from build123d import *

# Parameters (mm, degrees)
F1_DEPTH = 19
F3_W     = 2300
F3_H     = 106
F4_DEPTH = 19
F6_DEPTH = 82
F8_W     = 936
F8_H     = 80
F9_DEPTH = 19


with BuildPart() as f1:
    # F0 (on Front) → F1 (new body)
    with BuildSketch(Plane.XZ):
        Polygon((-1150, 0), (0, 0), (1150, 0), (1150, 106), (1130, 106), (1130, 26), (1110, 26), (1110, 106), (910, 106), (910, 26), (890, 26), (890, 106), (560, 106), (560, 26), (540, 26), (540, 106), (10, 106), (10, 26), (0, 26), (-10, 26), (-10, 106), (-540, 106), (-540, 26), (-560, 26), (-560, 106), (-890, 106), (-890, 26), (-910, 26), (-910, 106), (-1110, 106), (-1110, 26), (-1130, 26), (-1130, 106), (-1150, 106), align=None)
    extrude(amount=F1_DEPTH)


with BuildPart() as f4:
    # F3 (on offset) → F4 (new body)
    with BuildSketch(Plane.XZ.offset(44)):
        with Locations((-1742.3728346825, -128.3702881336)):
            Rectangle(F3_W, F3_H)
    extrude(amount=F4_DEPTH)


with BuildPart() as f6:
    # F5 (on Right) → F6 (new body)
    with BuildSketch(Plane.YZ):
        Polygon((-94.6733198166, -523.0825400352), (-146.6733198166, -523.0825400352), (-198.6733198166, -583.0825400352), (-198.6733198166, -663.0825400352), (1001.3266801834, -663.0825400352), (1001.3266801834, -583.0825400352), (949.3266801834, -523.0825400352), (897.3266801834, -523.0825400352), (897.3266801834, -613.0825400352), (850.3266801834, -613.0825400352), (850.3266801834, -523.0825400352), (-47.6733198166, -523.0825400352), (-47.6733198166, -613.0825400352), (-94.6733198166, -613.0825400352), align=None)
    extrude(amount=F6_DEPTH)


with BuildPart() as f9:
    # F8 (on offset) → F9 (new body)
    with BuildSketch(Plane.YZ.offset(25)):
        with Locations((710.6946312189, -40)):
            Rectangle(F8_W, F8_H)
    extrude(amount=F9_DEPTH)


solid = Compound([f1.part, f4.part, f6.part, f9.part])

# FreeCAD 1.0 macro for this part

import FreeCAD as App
import Part
import Sketcher
from FreeCAD import Vector

doc = App.newDocument("Part")
body = doc.addObject("PartDesign::Body", "Body")

# Sketch on XZ plane
sketch1 = body.newObject("Sketcher::SketchObject", "Sketch")
sketch1.AttachmentSupport = (doc.getObject("XZ_Plane"), [""])
sketch1.MapMode = "FlatFace"
sketch1.addGeometry(Part.LineSegment(Vector(-1150, 0, 0), Vector(1150, 0, 0)), False)
sketch1.addGeometry(Part.LineSegment(Vector(1150, 0, 0), Vector(1150, 106, 0)), False)
sketch1.addGeometry(Part.LineSegment(Vector(1150, 106, 0), Vector(1130, 106, 0)), False)
sketch1.addGeometry(Part.LineSegment(Vector(1130, 106, 0), Vector(1130, 26, 0)), False)
sketch1.addGeometry(Part.LineSegment(Vector(1130, 26, 0), Vector(1110, 26, 0)), False)
sketch1.addGeometry(Part.LineSegment(Vector(1110, 26, 0), Vector(1110, 106, 0)), False)
sketch1.addGeometry(Part.LineSegment(Vector(1110, 106, 0), Vector(910, 106, 0)), False)
sketch1.addGeometry(Part.LineSegment(Vector(910, 106, 0), Vector(910, 26, 0)), False)
sketch1.addGeometry(Part.LineSegment(Vector(910, 26, 0), Vector(890, 26, 0)), False)
sketch1.addGeometry(Part.LineSegment(Vector(890, 26, 0), Vector(890, 106, 0)), False)
sketch1.addGeometry(Part.LineSegment(Vector(890, 106, 0), Vector(560, 106, 0)), False)
sketch1.addGeometry(Part.LineSegment(Vector(560, 106, 0), Vector(560, 26, 0)), False)
sketch1.addGeometry(Part.LineSegment(Vector(560, 26, 0), Vector(540, 26, 0)), False)
sketch1.addGeometry(Part.LineSegment(Vector(540, 26, 0), Vector(540, 106, 0)), False)
sketch1.addGeometry(Part.LineSegment(Vector(540, 106, 0), Vector(10, 106, 0)), False)
sketch1.addGeometry(Part.LineSegment(Vector(10, 106, 0), Vector(10, 26, 0)), False)
sketch1.addGeometry(Part.LineSegment(Vector(10, 26, 0), Vector(-10, 26, 0)), False)
sketch1.addGeometry(Part.LineSegment(Vector(-10, 26, 0), Vector(-10, 106, 0)), False)
sketch1.addGeometry(Part.LineSegment(Vector(-10, 106, 0), Vector(-540, 106, 0)), False)
sketch1.addGeometry(Part.LineSegment(Vector(-540, 106, 0), Vector(-540, 26, 0)), False)
sketch1.addGeometry(Part.LineSegment(Vector(-540, 26, 0), Vector(-560, 26, 0)), False)
sketch1.addGeometry(Part.LineSegment(Vector(-560, 26, 0), Vector(-560, 106, 0)), False)
sketch1.addGeometry(Part.LineSegment(Vector(-560, 106, 0), Vector(-890, 106, 0)), False)
sketch1.addGeometry(Part.LineSegment(Vector(-890, 106, 0), Vector(-890, 26, 0)), False)
sketch1.addGeometry(Part.LineSegment(Vector(-890, 26, 0), Vector(-910, 26, 0)), False)
sketch1.addGeometry(Part.LineSegment(Vector(-910, 26, 0), Vector(-910, 106, 0)), False)
sketch1.addGeometry(Part.LineSegment(Vector(-910, 106, 0), Vector(-1110, 106, 0)), False)
sketch1.addGeometry(Part.LineSegment(Vector(-1110, 106, 0), Vector(-1110, 26, 0)), False)
sketch1.addGeometry(Part.LineSegment(Vector(-1110, 26, 0), Vector(-1130, 26, 0)), False)
sketch1.addGeometry(Part.LineSegment(Vector(-1130, 26, 0), Vector(-1130, 106, 0)), False)
sketch1.addGeometry(Part.LineSegment(Vector(-1130, 106, 0), Vector(-1150, 106, 0)), False)
sketch1.addGeometry(Part.LineSegment(Vector(-1150, 106, 0), Vector(-1150, 0, 0)), False)
sketch1.addConstraint(Sketcher.Constraint("Coincident", 0, 2, 1, 1))
sketch1.addConstraint(Sketcher.Constraint("Coincident", 1, 2, 2, 1))
sketch1.addConstraint(Sketcher.Constraint("Coincident", 2, 2, 3, 1))
sketch1.addConstraint(Sketcher.Constraint("Coincident", 3, 2, 4, 1))
sketch1.addConstraint(Sketcher.Constraint("Coincident", 4, 2, 5, 1))
sketch1.addConstraint(Sketcher.Constraint("Coincident", 5, 2, 6, 1))
sketch1.addConstraint(Sketcher.Constraint("Coincident", 6, 2, 7, 1))
sketch1.addConstraint(Sketcher.Constraint("Coincident", 7, 2, 8, 1))
sketch1.addConstraint(Sketcher.Constraint("Coincident", 8, 2, 9, 1))
sketch1.addConstraint(Sketcher.Constraint("Coincident", 9, 2, 10, 1))
sketch1.addConstraint(Sketcher.Constraint("Coincident", 10, 2, 11, 1))
sketch1.addConstraint(Sketcher.Constraint("Coincident", 11, 2, 12, 1))
sketch1.addConstraint(Sketcher.Constraint("Coincident", 12, 2, 13, 1))
sketch1.addConstraint(Sketcher.Constraint("Coincident", 13, 2, 14, 1))
sketch1.addConstraint(Sketcher.Constraint("Coincident", 14, 2, 15, 1))
sketch1.addConstraint(Sketcher.Constraint("Coincident", 15, 2, 16, 1))
sketch1.addConstraint(Sketcher.Constraint("Coincident", 16, 2, 17, 1))
sketch1.addConstraint(Sketcher.Constraint("Coincident", 17, 2, 18, 1))
sketch1.addConstraint(Sketcher.Constraint("Coincident", 18, 2, 19, 1))
sketch1.addConstraint(Sketcher.Constraint("Coincident", 19, 2, 20, 1))
sketch1.addConstraint(Sketcher.Constraint("Coincident", 20, 2, 21, 1))
sketch1.addConstraint(Sketcher.Constraint("Coincident", 21, 2, 22, 1))
sketch1.addConstraint(Sketcher.Constraint("Coincident", 22, 2, 23, 1))
sketch1.addConstraint(Sketcher.Constraint("Coincident", 23, 2, 24, 1))
sketch1.addConstraint(Sketcher.Constraint("Coincident", 24, 2, 25, 1))
sketch1.addConstraint(Sketcher.Constraint("Coincident", 25, 2, 26, 1))
sketch1.addConstraint(Sketcher.Constraint("Coincident", 26, 2, 27, 1))
sketch1.addConstraint(Sketcher.Constraint("Coincident", 27, 2, 28, 1))
sketch1.addConstraint(Sketcher.Constraint("Coincident", 28, 2, 29, 1))
sketch1.addConstraint(Sketcher.Constraint("Coincident", 29, 2, 30, 1))
sketch1.addConstraint(Sketcher.Constraint("Coincident", 30, 2, 31, 1))
sketch1.addConstraint(Sketcher.Constraint("Coincident", 31, 2, 0, 1))
sketch1.addConstraint(Sketcher.Constraint("Horizontal", 0))
sketch1.addConstraint(Sketcher.Constraint("Vertical", 1))
sketch1.addConstraint(Sketcher.Constraint("Horizontal", 2))
sketch1.addConstraint(Sketcher.Constraint("Vertical", 3))
sketch1.addConstraint(Sketcher.Constraint("Horizontal", 4))
sketch1.addConstraint(Sketcher.Constraint("Vertical", 5))
sketch1.addConstraint(Sketcher.Constraint("Horizontal", 6))
sketch1.addConstraint(Sketcher.Constraint("Vertical", 7))
sketch1.addConstraint(Sketcher.Constraint("Horizontal", 8))
sketch1.addConstraint(Sketcher.Constraint("Vertical", 9))
sketch1.addConstraint(Sketcher.Constraint("Horizontal", 10))
sketch1.addConstraint(Sketcher.Constraint("Vertical", 11))
sketch1.addConstraint(Sketcher.Constraint("Horizontal", 12))
sketch1.addConstraint(Sketcher.Constraint("Vertical", 13))
sketch1.addConstraint(Sketcher.Constraint("Horizontal", 14))
sketch1.addConstraint(Sketcher.Constraint("Vertical", 15))
sketch1.addConstraint(Sketcher.Constraint("Horizontal", 16))
sketch1.addConstraint(Sketcher.Constraint("Vertical", 17))
sketch1.addConstraint(Sketcher.Constraint("Horizontal", 18))
sketch1.addConstraint(Sketcher.Constraint("Vertical", 19))
sketch1.addConstraint(Sketcher.Constraint("Horizontal", 20))
sketch1.addConstraint(Sketcher.Constraint("Vertical", 21))
sketch1.addConstraint(Sketcher.Constraint("Horizontal", 22))
sketch1.addConstraint(Sketcher.Constraint("Vertical", 23))
sketch1.addConstraint(Sketcher.Constraint("Horizontal", 24))
sketch1.addConstraint(Sketcher.Constraint("Vertical", 25))
sketch1.addConstraint(Sketcher.Constraint("Horizontal", 26))
sketch1.addConstraint(Sketcher.Constraint("Vertical", 27))
sketch1.addConstraint(Sketcher.Constraint("Horizontal", 28))
sketch1.addConstraint(Sketcher.Constraint("Vertical", 29))
sketch1.addConstraint(Sketcher.Constraint("Horizontal", 30))
sketch1.addConstraint(Sketcher.Constraint("Vertical", 31))
sketch1.addConstraint(Sketcher.Constraint("Symmetric", 0, 2, 31, 2, -1, 1))
sketch1.addConstraint(Sketcher.Constraint("Symmetric", 14, 2, 17, 2, -2))
sketch1.addConstraint(Sketcher.Constraint("Symmetric", 12, 2, 19, 2, -2))
sketch1.addConstraint(Sketcher.Constraint("Symmetric", 10, 2, 21, 2, -2))
sketch1.addConstraint(Sketcher.Constraint("Symmetric", 8, 2, 23, 2, -2))
sketch1.addConstraint(Sketcher.Constraint("Symmetric", 6, 2, 25, 2, -2))
sketch1.addConstraint(Sketcher.Constraint("Symmetric", 4, 2, 27, 2, -2))
sketch1.addConstraint(Sketcher.Constraint("Symmetric", 2, 2, 29, 2, -2))
sketch1.addConstraint(Sketcher.Constraint("Horizontal", 2, 2, 5, 2))
sketch1.addConstraint(Sketcher.Constraint("Horizontal", 4, 2, 7, 2))
sketch1.addConstraint(Sketcher.Constraint("Horizontal", 6, 2, 9, 2))
sketch1.addConstraint(Sketcher.Constraint("Horizontal", 8, 2, 11, 2))
sketch1.addConstraint(Sketcher.Constraint("Horizontal", 10, 2, 13, 2))
sketch1.addConstraint(Sketcher.Constraint("Horizontal", 12, 2, 15, 2))
sketch1.addConstraint(Sketcher.Constraint("Equal", 2, 4))
sketch1.addConstraint(Sketcher.Constraint("Equal", 4, 8))
sketch1.addConstraint(Sketcher.Constraint("Equal", 8, 12))
sketch1.addConstraint(Sketcher.Constraint("Equal", 12, 16))
sketch1.addConstraint(Sketcher.Constraint("DistanceX", 0, 1, 0, 2, 2300.0))
sketch1.addConstraint(Sketcher.Constraint("DistanceX", 2, 2, 2, 1, 20.0))
sketch1.addConstraint(Sketcher.Constraint("DistanceX", 6, 2, 6, 1, 200.0))
sketch1.addConstraint(Sketcher.Constraint("DistanceX", 10, 2, 10, 1, 330.0))
sketch1.addConstraint(Sketcher.Constraint("DistanceY", 1, 1, 1, 2, 106.0))
sketch1.addConstraint(Sketcher.Constraint("DistanceY", 3, 2, 3, 1, 80.0))
pad1 = body.newObject("PartDesign::Pad", "Pad")
pad1.Profile = sketch1
pad1.Length = 19
body2 = doc.addObject("PartDesign::Body", "Body001")

# Sketch on XZ plane
sketch2 = body2.newObject("Sketcher::SketchObject", "Sketch001")
sketch2.AttachmentSupport = (doc.getObject("XZ_Plane001"), [""])
sketch2.MapMode = "FlatFace"
sketch2.AttachmentOffset = App.Placement(Vector(0, 0, 44), App.Rotation())
sketch2.addGeometry(Part.LineSegment(Vector(-2892.372835, -75.370288, 0), Vector(-2892.372835, -181.370288, 0)), False)
sketch2.addGeometry(Part.LineSegment(Vector(-2892.372835, -181.370288, 0), Vector(-592.372835, -181.370288, 0)), False)
sketch2.addGeometry(Part.LineSegment(Vector(-592.372835, -181.370288, 0), Vector(-592.372835, -75.370288, 0)), False)
sketch2.addGeometry(Part.LineSegment(Vector(-592.372835, -75.370288, 0), Vector(-2892.372835, -75.370288, 0)), False)
sketch2.addConstraint(Sketcher.Constraint("Coincident", 0, 2, 1, 1))
sketch2.addConstraint(Sketcher.Constraint("Coincident", 1, 2, 2, 1))
sketch2.addConstraint(Sketcher.Constraint("Coincident", 2, 2, 3, 1))
sketch2.addConstraint(Sketcher.Constraint("Coincident", 3, 2, 0, 1))
sketch2.addConstraint(Sketcher.Constraint("Vertical", 0))
sketch2.addConstraint(Sketcher.Constraint("Horizontal", 1))
sketch2.addConstraint(Sketcher.Constraint("Vertical", 2))
sketch2.addConstraint(Sketcher.Constraint("Horizontal", 3))
sketch2.addConstraint(Sketcher.Constraint("DistanceX", 1, 1, 1, 2, 2300.0))
sketch2.addConstraint(Sketcher.Constraint("DistanceY", 0, 2, 0, 1, 106.0))
sketch2.addConstraint(Sketcher.Constraint("DistanceY", 0, 2, -1, 1, 181.370288))
sketch2.addConstraint(Sketcher.Constraint("DistanceX", 0, 2, -1, 1, 2892.372835))
pad2 = body2.newObject("PartDesign::Pad", "Pad001")
pad2.Profile = sketch2
pad2.Length = 19
body3 = doc.addObject("PartDesign::Body", "Body002")

# Sketch on YZ plane
sketch3 = body3.newObject("Sketcher::SketchObject", "Sketch002")
sketch3.AttachmentSupport = (doc.getObject("YZ_Plane002"), [""])
sketch3.MapMode = "FlatFace"
sketch3.addGeometry(Part.LineSegment(Vector(-94.67332, -523.08254, 0), Vector(-146.67332, -523.08254, 0)), False)
sketch3.addGeometry(Part.LineSegment(Vector(-146.67332, -523.08254, 0), Vector(-198.67332, -583.08254, 0)), False)
sketch3.addGeometry(Part.LineSegment(Vector(-198.67332, -583.08254, 0), Vector(-198.67332, -663.08254, 0)), False)
sketch3.addGeometry(Part.LineSegment(Vector(-198.67332, -663.08254, 0), Vector(1001.32668, -663.08254, 0)), False)
sketch3.addGeometry(Part.LineSegment(Vector(1001.32668, -663.08254, 0), Vector(1001.32668, -583.08254, 0)), False)
sketch3.addGeometry(Part.LineSegment(Vector(1001.32668, -583.08254, 0), Vector(949.32668, -523.08254, 0)), False)
sketch3.addGeometry(Part.LineSegment(Vector(949.32668, -523.08254, 0), Vector(897.32668, -523.08254, 0)), False)
sketch3.addGeometry(Part.LineSegment(Vector(897.32668, -523.08254, 0), Vector(897.32668, -613.08254, 0)), False)
sketch3.addGeometry(Part.LineSegment(Vector(897.32668, -613.08254, 0), Vector(850.32668, -613.08254, 0)), False)
sketch3.addGeometry(Part.LineSegment(Vector(850.32668, -613.08254, 0), Vector(850.32668, -523.08254, 0)), False)
sketch3.addGeometry(Part.LineSegment(Vector(850.32668, -523.08254, 0), Vector(-47.67332, -523.08254, 0)), False)
sketch3.addGeometry(Part.LineSegment(Vector(-47.67332, -523.08254, 0), Vector(-47.67332, -613.08254, 0)), False)
sketch3.addGeometry(Part.LineSegment(Vector(-47.67332, -613.08254, 0), Vector(-94.67332, -613.08254, 0)), False)
sketch3.addGeometry(Part.LineSegment(Vector(-94.67332, -613.08254, 0), Vector(-94.67332, -523.08254, 0)), False)
sketch3.addConstraint(Sketcher.Constraint("Coincident", 0, 2, 1, 1))
sketch3.addConstraint(Sketcher.Constraint("Coincident", 1, 2, 2, 1))
sketch3.addConstraint(Sketcher.Constraint("Coincident", 2, 2, 3, 1))
sketch3.addConstraint(Sketcher.Constraint("Coincident", 3, 2, 4, 1))
sketch3.addConstraint(Sketcher.Constraint("Coincident", 4, 2, 5, 1))
sketch3.addConstraint(Sketcher.Constraint("Coincident", 5, 2, 6, 1))
sketch3.addConstraint(Sketcher.Constraint("Coincident", 6, 2, 7, 1))
sketch3.addConstraint(Sketcher.Constraint("Coincident", 7, 2, 8, 1))
sketch3.addConstraint(Sketcher.Constraint("Coincident", 8, 2, 9, 1))
sketch3.addConstraint(Sketcher.Constraint("Coincident", 9, 2, 10, 1))
sketch3.addConstraint(Sketcher.Constraint("Coincident", 10, 2, 11, 1))
sketch3.addConstraint(Sketcher.Constraint("Coincident", 11, 2, 12, 1))
sketch3.addConstraint(Sketcher.Constraint("Coincident", 12, 2, 13, 1))
sketch3.addConstraint(Sketcher.Constraint("Coincident", 13, 2, 0, 1))
sketch3.addConstraint(Sketcher.Constraint("Horizontal", 0))
sketch3.addConstraint(Sketcher.Constraint("Vertical", 2))
sketch3.addConstraint(Sketcher.Constraint("Horizontal", 3))
sketch3.addConstraint(Sketcher.Constraint("Vertical", 4))
sketch3.addConstraint(Sketcher.Constraint("Horizontal", 6))
sketch3.addConstraint(Sketcher.Constraint("Vertical", 7))
sketch3.addConstraint(Sketcher.Constraint("Horizontal", 8))
sketch3.addConstraint(Sketcher.Constraint("Vertical", 9))
sketch3.addConstraint(Sketcher.Constraint("Horizontal", 10))
sketch3.addConstraint(Sketcher.Constraint("Vertical", 11))
sketch3.addConstraint(Sketcher.Constraint("Horizontal", 12))
sketch3.addConstraint(Sketcher.Constraint("Vertical", 13))
sketch3.addConstraint(Sketcher.Constraint("Horizontal", 1, 2, 4, 2))
sketch3.addConstraint(Sketcher.Constraint("Horizontal", 0, 2, 5, 2))
sketch3.addConstraint(Sketcher.Constraint("Horizontal", 6, 2, 9, 2))
sketch3.addConstraint(Sketcher.Constraint("Horizontal", 8, 2, 11, 2))
sketch3.addConstraint(Sketcher.Constraint("Equal", 0, 6))
sketch3.addConstraint(Sketcher.Constraint("Equal", 8, 12))
sketch3.addConstraint(Sketcher.Constraint("Equal", 1, 5))
sketch3.addConstraint(Sketcher.Constraint("DistanceX", 0, 2, 0, 1, 52.0))
sketch3.addConstraint(Sketcher.Constraint("DistanceX", 3, 1, 3, 2, 1200.0))
sketch3.addConstraint(Sketcher.Constraint("DistanceX", 8, 2, 8, 1, 47.0))
sketch3.addConstraint(Sketcher.Constraint("DistanceX", 10, 2, 10, 1, 898.0))
sketch3.addConstraint(Sketcher.Constraint("DistanceY", 2, 2, 2, 1, 80.0))
sketch3.addConstraint(Sketcher.Constraint("DistanceY", 7, 2, 7, 1, 90.0))
sketch3.addConstraint(Sketcher.Constraint("DistanceY", 1, 2, 0, 2, 60.0))
sketch3.addConstraint(Sketcher.Constraint("DistanceX", 0, 2, -1, 1, 146.67332))
sketch3.addConstraint(Sketcher.Constraint("DistanceY", 0, 2, -1, 1, 523.08254))
pad3 = body3.newObject("PartDesign::Pad", "Pad002")
pad3.Profile = sketch3
pad3.Length = 82
body4 = doc.addObject("PartDesign::Body", "Body003")

# Sketch on YZ plane
sketch4 = body4.newObject("Sketcher::SketchObject", "Sketch003")
sketch4.AttachmentSupport = (doc.getObject("YZ_Plane003"), [""])
sketch4.MapMode = "FlatFace"
sketch4.AttachmentOffset = App.Placement(Vector(0, 0, 25), App.Rotation())
sketch4.addGeometry(Part.LineSegment(Vector(242.694631, 0, 0), Vector(242.694631, -80, 0)), False)
sketch4.addGeometry(Part.LineSegment(Vector(242.694631, -80, 0), Vector(1178.694631, -80, 0)), False)
sketch4.addGeometry(Part.LineSegment(Vector(1178.694631, -80, 0), Vector(1178.694631, 0, 0)), False)
sketch4.addGeometry(Part.LineSegment(Vector(1178.694631, 0, 0), Vector(242.694631, 0, 0)), False)
sketch4.addConstraint(Sketcher.Constraint("Coincident", 0, 2, 1, 1))
sketch4.addConstraint(Sketcher.Constraint("Coincident", 1, 2, 2, 1))
sketch4.addConstraint(Sketcher.Constraint("Coincident", 2, 2, 3, 1))
sketch4.addConstraint(Sketcher.Constraint("Coincident", 3, 2, 0, 1))
sketch4.addConstraint(Sketcher.Constraint("Vertical", 0))
sketch4.addConstraint(Sketcher.Constraint("Horizontal", 1))
sketch4.addConstraint(Sketcher.Constraint("Vertical", 2))
sketch4.addConstraint(Sketcher.Constraint("Horizontal", 3))
sketch4.addConstraint(Sketcher.Constraint("PointOnObject", 2, 2, -1))
sketch4.addConstraint(Sketcher.Constraint("DistanceX", 1, 1, 1, 2, 936.0))
sketch4.addConstraint(Sketcher.Constraint("DistanceY", 0, 2, 0, 1, 80.0))
sketch4.addConstraint(Sketcher.Constraint("DistanceX", -1, 1, 0, 2, 242.694631))
pad4 = body4.newObject("PartDesign::Pad", "Pad003")
pad4.Profile = sketch4
pad4.Length = 19

doc.recompute()
